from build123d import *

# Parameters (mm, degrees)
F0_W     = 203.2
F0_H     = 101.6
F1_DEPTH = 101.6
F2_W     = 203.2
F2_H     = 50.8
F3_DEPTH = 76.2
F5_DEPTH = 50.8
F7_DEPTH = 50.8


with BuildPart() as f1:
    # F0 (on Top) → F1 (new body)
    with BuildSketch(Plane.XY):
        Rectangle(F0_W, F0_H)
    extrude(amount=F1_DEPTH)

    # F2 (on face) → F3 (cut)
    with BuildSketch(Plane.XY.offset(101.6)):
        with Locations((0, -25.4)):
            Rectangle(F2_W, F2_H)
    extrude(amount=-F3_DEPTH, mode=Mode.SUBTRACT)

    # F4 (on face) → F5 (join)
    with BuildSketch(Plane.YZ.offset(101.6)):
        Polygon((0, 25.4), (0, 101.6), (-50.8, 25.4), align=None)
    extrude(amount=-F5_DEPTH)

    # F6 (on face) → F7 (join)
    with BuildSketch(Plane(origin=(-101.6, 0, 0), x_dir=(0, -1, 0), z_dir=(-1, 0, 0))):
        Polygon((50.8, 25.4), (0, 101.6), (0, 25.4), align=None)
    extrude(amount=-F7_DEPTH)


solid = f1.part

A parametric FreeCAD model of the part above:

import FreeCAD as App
import Part
import Sketcher

V = App.Vector
Q = App.Units.Quantity


def add_polygon(sketch, points):
    """Adds a closed chain of lines whose ends are joined by coincident constraints."""
    first, n = sketch.GeometryCount, len(points)
    for a, b in zip(points, points[1:] + points[:1]):
        sketch.addGeometry(Part.LineSegment(App.Vector(*a, 0), App.Vector(*b, 0)), False)
    for i in range(n):
        sketch.addConstraint(Sketcher.Constraint("Coincident", first + i, 2, first + (i + 1) % n, 1))

doc = App.newDocument("Part")
params = doc.addObject("Spreadsheet::Sheet", "Params")
for row, (alias, value) in enumerate([
    ("sketch1_width", "8 in"),
    ("sketch1_height", "4 in"),
    ("pad1_length", "4 in"),
    ("sketch2_width", "8 in"),
    ("sketch2_height", "2 in"),
    ("pocket1_length", "3 in"),
    ("sketch3_width", "2 in"),
    ("sketch3_height", "3 in"),
    ("pad2_length", "2 in"),
    ("sketch4_width", "2 in"),
    ("sketch4_height", "3 in"),
    ("pad3_length", "2 in"),
], start=1):
    params.set(f"A{row}", alias)
    params.set(f"B{row}", "=" + value)
    params.setAlias(f"B{row}", alias)

body = doc.addObject("PartDesign::Body", "Body")

# Sketch on XY plane
sketch1 = doc.addObject("Sketcher::SketchObject", "Sketch")
body.addObject(sketch1)
sketch1.AttachmentSupport = (doc.XY_Plane, [""])
sketch1.MapMode = "FlatFace"
add_polygon(sketch1, [(-102, 51), (-102, -51), (102, -51), (102, 51)])  # lines 0-3
sketch1.addConstraint(Sketcher.Constraint("Vertical", 0))
sketch1.addConstraint(Sketcher.Constraint("Horizontal", 1))
sketch1.addConstraint(Sketcher.Constraint("Vertical", 2))
sketch1.addConstraint(Sketcher.Constraint("Horizontal", 3))
sketch1.addConstraint(Sketcher.Constraint("Symmetric", 0, 2, 2, 2, -1, 1))
sketch1.addConstraint(Sketcher.Constraint("DistanceX", 1, 1, 1, 2, Q("8 in")))
sketch1.addConstraint(Sketcher.Constraint("DistanceY", 0, 2, 0, 1, Q("4 in")))
sketch1.setExpression("Constraints[9]", "Params.sketch1_width")
sketch1.setExpression("Constraints[10]", "Params.sketch1_height")
pad1 = doc.addObject("PartDesign::Pad", "Pad")
body.addObject(pad1)
pad1.Profile = sketch1
pad1.setExpression("Length", "Params.pad1_length")

# Sketch on XY plane
sketch2 = doc.addObject("Sketcher::SketchObject", "Sketch001")
body.addObject(sketch2)
sketch2.AttachmentSupport = (doc.XY_Plane, [""])
sketch2.MapMode = "FlatFace"
sketch2.AttachmentOffset = App.Placement(V(0, 0, 4 * 25.4), App.Rotation())
add_polygon(sketch2, [(-102, 0), (-102, -51), (102, -51), (102, 0)])  # lines 0-3
sketch2.addConstraint(Sketcher.Constraint("Vertical", 0))
sketch2.addConstraint(Sketcher.Constraint("Horizontal", 1))
sketch2.addConstraint(Sketcher.Constraint("Vertical", 2))
sketch2.addConstraint(Sketcher.Constraint("Horizontal", 3))
sketch2.addConstraint(Sketcher.Constraint("Symmetric", 2, 2, 3, 2, -1, 1))
sketch2.addConstraint(Sketcher.Constraint("DistanceX", 1, 1, 1, 2, Q("8 in")))
sketch2.addConstraint(Sketcher.Constraint("DistanceY", 0, 2, 0, 1, Q("2 in")))
sketch2.setExpression("Constraints[9]", "Params.sketch2_width")
sketch2.setExpression("Constraints[10]", "Params.sketch2_height")
pocket1 = doc.addObject("PartDesign::Pocket", "Pocket")
body.addObject(pocket1)
pocket1.Profile = sketch2
pocket1.setExpression("Length", "Params.pocket1_length")

# Sketch on YZ plane
sketch3 = doc.addObject("Sketcher::SketchObject", "Sketch002")
body.addObject(sketch3)
sketch3.AttachmentSupport = (doc.YZ_Plane, [""])
sketch3.MapMode = "FlatFace"
sketch3.AttachmentOffset = App.Placement(V(0, 0, 4 * 25.4), App.Rotation())
add_polygon(sketch3, [(0, 25), (0, 102), (-51, 25)])  # lines 0-2
sketch3.addConstraint(Sketcher.Constraint("Vertical", 0))
sketch3.addConstraint(Sketcher.Constraint("Horizontal", 2))
sketch3.addConstraint(Sketcher.Constraint("PointOnObject", 0, 2, -2))
sketch3.addConstraint(Sketcher.Constraint("DistanceX", 2, 1, 2, 2, Q("2 in")))
sketch3.addConstraint(Sketcher.Constraint("DistanceY", 0, 1, 0, 2, Q("3 in")))
sketch3.addConstraint(Sketcher.Constraint("DistanceY", -1, 1, 0, 2, Q("4 in")))
sketch3.setExpression("Constraints[6]", "Params.sketch3_width")
sketch3.setExpression("Constraints[7]", "Params.sketch3_height")
pad2 = doc.addObject("PartDesign::Pad", "Pad001")
body.addObject(pad2)
pad2.Profile = sketch3
pad2.setExpression("Length", "Params.pad2_length")
pad2.Reversed = True

# Sketch on YZ plane
sketch4 = doc.addObject("Sketcher::SketchObject", "Sketch003")
body.addObject(sketch4)
sketch4.AttachmentSupport = (doc.YZ_Plane, [""])
sketch4.MapMode = "FlatFace"
sketch4.AttachmentOffset = App.Placement(V(0, 0, -4 * 25.4), App.Rotation())
add_polygon(sketch4, [(-51, 25), (0, 102), (0, 25)])  # lines 0-2
sketch4.addConstraint(Sketcher.Constraint("Vertical", 1))
sketch4.addConstraint(Sketcher.Constraint("Horizontal", 2))
sketch4.addConstraint(Sketcher.Constraint("PointOnObject", 0, 2, -2))
sketch4.addConstraint(Sketcher.Constraint("DistanceX", 2, 2, 2, 1, Q("2 in")))
sketch4.addConstraint(Sketcher.Constraint("DistanceY", 1, 2, 1, 1, Q("3 in")))
sketch4.addConstraint(Sketcher.Constraint("DistanceY", -1, 1, 0, 2, Q("4 in")))
sketch4.setExpression("Constraints[6]", "Params.sketch4_width")
sketch4.setExpression("Constraints[7]", "Params.sketch4_height")
pad3 = doc.addObject("PartDesign::Pad", "Pad002")
body.addObject(pad3)
pad3.Profile = sketch4
pad3.setExpression("Length", "Params.pad3_length")

doc.recompute()
